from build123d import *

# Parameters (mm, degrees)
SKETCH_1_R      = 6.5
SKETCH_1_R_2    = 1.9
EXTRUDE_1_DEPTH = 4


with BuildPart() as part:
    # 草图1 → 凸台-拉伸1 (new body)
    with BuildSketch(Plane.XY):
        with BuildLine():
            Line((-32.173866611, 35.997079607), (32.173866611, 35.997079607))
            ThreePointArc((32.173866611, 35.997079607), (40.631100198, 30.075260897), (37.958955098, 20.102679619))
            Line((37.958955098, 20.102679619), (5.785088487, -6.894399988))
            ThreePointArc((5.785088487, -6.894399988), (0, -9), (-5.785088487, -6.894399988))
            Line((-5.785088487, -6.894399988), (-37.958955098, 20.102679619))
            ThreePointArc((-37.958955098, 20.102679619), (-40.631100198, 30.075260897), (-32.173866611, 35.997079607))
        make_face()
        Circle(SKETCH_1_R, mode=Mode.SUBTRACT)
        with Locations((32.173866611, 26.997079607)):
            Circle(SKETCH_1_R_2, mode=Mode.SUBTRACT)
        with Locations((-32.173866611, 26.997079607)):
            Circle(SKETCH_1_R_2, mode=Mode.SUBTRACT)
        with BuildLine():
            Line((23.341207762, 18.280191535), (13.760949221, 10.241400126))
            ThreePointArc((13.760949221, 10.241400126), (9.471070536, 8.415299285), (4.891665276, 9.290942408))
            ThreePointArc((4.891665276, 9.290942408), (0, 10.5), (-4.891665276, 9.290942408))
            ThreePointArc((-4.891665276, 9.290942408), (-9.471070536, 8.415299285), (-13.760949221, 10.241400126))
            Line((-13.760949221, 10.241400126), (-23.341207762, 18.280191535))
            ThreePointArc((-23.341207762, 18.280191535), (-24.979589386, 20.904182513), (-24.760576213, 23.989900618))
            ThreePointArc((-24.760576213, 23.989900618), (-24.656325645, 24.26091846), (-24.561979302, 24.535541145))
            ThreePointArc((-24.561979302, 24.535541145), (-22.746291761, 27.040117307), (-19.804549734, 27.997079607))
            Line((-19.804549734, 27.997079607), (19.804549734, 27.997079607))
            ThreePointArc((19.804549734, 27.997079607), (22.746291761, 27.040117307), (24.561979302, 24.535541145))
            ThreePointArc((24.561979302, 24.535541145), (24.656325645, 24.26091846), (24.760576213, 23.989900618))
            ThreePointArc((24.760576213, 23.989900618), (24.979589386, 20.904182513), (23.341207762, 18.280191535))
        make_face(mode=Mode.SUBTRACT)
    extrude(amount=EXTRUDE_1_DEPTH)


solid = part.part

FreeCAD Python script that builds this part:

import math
import FreeCAD as App
import Part
import Sketcher
Q = App.Units.Quantity

doc = App.newDocument("Part")
body = doc.addObject("PartDesign::Body", "Body")

sketch1 = body.newObject("Sketcher::SketchObject", "Sketch")
sketch1.AttachmentSupport = (doc.getObject("XY_Plane"), [""])
sketch1.MapMode = "FlatFace"
sketch1.addGeometry([
    Part.LineSegment(App.Vector(32.173867, 35.99708, 0), App.Vector(-32.173867, 35.99708, 0)),
    Part.ArcOfCircle(Part.Circle(App.Vector(-32.173867, 26.99708, 0), App.Vector(0, 0, 1), 9), math.radians(90), math.radians(230)),
    Part.LineSegment(App.Vector(-37.958955, 20.10268, 0), App.Vector(-5.785088, -6.8944, 0)),
    Part.ArcOfCircle(Part.Circle(App.Vector(0, 0, 0), App.Vector(0, 0, 1), 9), math.radians(-130), math.radians(-50)),
    Part.LineSegment(App.Vector(5.785088, -6.8944, 0), App.Vector(37.958955, 20.10268, 0)),
    Part.ArcOfCircle(Part.Circle(App.Vector(32.173867, 26.99708, 0), App.Vector(0, 0, 1), 9), math.radians(-50), math.radians(90)),
    Part.Circle(App.Vector(0, 0, 0), App.Vector(0, 0, 1), 6.5),
    Part.Circle(App.Vector(32.173867, 26.99708, 0), App.Vector(0, 0, 1), 1.9),
    Part.LineSegment(App.Vector(23.341208, 18.280192, 0), App.Vector(13.760949, 10.2414, 0)),
    Part.ArcOfCircle(Part.Circle(App.Vector(8.618648, 16.369756, 0), App.Vector(0, 0, 1), 8), math.radians(-117.766728), math.radians(-50)),
    Part.ArcOfCircle(Part.Circle(App.Vector(0, 0, 0), App.Vector(0, 0, 1), 10.5), math.radians(62.233272), math.radians(117.766728)),
    Part.ArcOfCircle(Part.Circle(App.Vector(-8.618648, 16.369756, 0), App.Vector(0, 0, 1), 8), math.radians(-130), math.radians(-62.233272)),
    Part.LineSegment(App.Vector(-13.760949, 10.2414, 0), App.Vector(-23.341208, 18.280192, 0)),
    Part.ArcOfCircle(Part.Circle(App.Vector(-20.12727, 22.110414, 0), App.Vector(0, 0, 1), 5), math.radians(157.920213), math.radians(230)),
    Part.ArcOfCircle(Part.Circle(App.Vector(-32.173867, 26.99708, 0), App.Vector(0, 0, 1), 8), math.radians(-22.079787), math.radians(-17.920213)),
    Part.ArcOfCircle(Part.Circle(App.Vector(-19.80455, 22.99708, 0), App.Vector(0, 0, 1), 5), math.radians(90), math.radians(162.079787)),
    Part.LineSegment(App.Vector(-19.80455, 27.99708, 0), App.Vector(19.80455, 27.99708, 0)),
    Part.ArcOfCircle(Part.Circle(App.Vector(19.80455, 22.99708, 0), App.Vector(0, 0, 1), 5), math.radians(17.920213), math.radians(90)),
    Part.ArcOfCircle(Part.Circle(App.Vector(32.173867, 26.99708, 0), App.Vector(0, 0, 1), 8), math.radians(-162.079787), math.radians(-157.920213)),
    Part.ArcOfCircle(Part.Circle(App.Vector(20.12727, 22.110414, 0), App.Vector(0, 0, 1), 5), math.radians(-50), math.radians(22.079787)),
    Part.Circle(App.Vector(-32.173867, 26.99708, 0), App.Vector(0, 0, 1), 1.9),
], False)
sketch1.addConstraint([
    Sketcher.Constraint("Tangent", 0, 2, 1, 1),
    Sketcher.Constraint("Tangent", 1, 2, 2, 1),
    Sketcher.Constraint("Tangent", 2, 2, 3, 1),
    Sketcher.Constraint("Tangent", 3, 2, 4, 1),
    Sketcher.Constraint("Tangent", 4, 2, 5, 1),
    Sketcher.Constraint("Tangent", 5, 2, 0, 1),
    Sketcher.Constraint("Tangent", 8, 2, 9, 2),
    Sketcher.Constraint("Tangent", 9, 1, 10, 1),
    Sketcher.Constraint("Tangent", 10, 2, 11, 2),
    Sketcher.Constraint("Tangent", 11, 1, 12, 1),
    Sketcher.Constraint("Tangent", 12, 2, 13, 2),
    Sketcher.Constraint("Tangent", 13, 1, 14, 1),
    Sketcher.Constraint("Tangent", 14, 2, 15, 2),
    Sketcher.Constraint("Tangent", 15, 1, 16, 1),
    Sketcher.Constraint("Tangent", 16, 2, 17, 2),
    Sketcher.Constraint("Tangent", 17, 1, 18, 1),
    Sketcher.Constraint("Tangent", 18, 2, 19, 2),
    Sketcher.Constraint("Tangent", 19, 1, 8, 1),
    Sketcher.Constraint("Horizontal", 0),
    Sketcher.Constraint("Horizontal", 16),
    Sketcher.Constraint("Coincident", 3, 3, -1, 1),
    Sketcher.Constraint("Coincident", 6, 3, -1, 1),
    Sketcher.Constraint("Coincident", 10, 3, -1, 1),
    Sketcher.Constraint("Coincident", 7, 3, 5, 3),
    Sketcher.Constraint("Coincident", 14, 3, 1, 3),
    Sketcher.Constraint("Coincident", 18, 3, 5, 3),
    Sketcher.Constraint("Coincident", 20, 3, 1, 3),
    Sketcher.Constraint("Equal", 1, 3),
    Sketcher.Constraint("Equal", 3, 5),
    Sketcher.Constraint("Equal", 9, 11),
    Sketcher.Constraint("Equal", 11, 14),
    Sketcher.Constraint("Equal", 13, 15),
    Sketcher.Constraint("Equal", 15, 17),
    Sketcher.Constraint("Equal", 14, 18),
    Sketcher.Constraint("Equal", 17, 19),
    Sketcher.Constraint("Equal", 7, 20),
    Sketcher.Constraint("Symmetric", 13, 3, 19, 3, -2),
    Sketcher.Constraint("Parallel", 4, 8),
    Sketcher.Constraint("Parallel", 2, 12),
    Sketcher.Constraint("Diameter", 6, Q("13 mm")),
    Sketcher.Constraint("Radius", 1, Q("9 mm")),
    Sketcher.Constraint("Radius", 9, Q("8 mm")),
    Sketcher.Constraint("Radius", 13, Q("5 mm")),
    Sketcher.Constraint("Diameter", 7, Q("3.8 mm")),
    Sketcher.Constraint("Radius", 10, Q("10.5 mm")),
    Sketcher.Constraint("Angle", 2, Q("-40 deg")),
    Sketcher.Constraint("Distance", 2, Q("42 mm")),
    Sketcher.Constraint("DistanceY", 15, 3, 1, 3, Q("4 mm")),
    Sketcher.Constraint("DistanceY", -1, 1, 8, 2, Q("10.2414 mm")),
])
pad1 = body.newObject("PartDesign::Pad", "Pad")
pad1.Profile = sketch1
pad1.Length = 4

doc.recompute()
